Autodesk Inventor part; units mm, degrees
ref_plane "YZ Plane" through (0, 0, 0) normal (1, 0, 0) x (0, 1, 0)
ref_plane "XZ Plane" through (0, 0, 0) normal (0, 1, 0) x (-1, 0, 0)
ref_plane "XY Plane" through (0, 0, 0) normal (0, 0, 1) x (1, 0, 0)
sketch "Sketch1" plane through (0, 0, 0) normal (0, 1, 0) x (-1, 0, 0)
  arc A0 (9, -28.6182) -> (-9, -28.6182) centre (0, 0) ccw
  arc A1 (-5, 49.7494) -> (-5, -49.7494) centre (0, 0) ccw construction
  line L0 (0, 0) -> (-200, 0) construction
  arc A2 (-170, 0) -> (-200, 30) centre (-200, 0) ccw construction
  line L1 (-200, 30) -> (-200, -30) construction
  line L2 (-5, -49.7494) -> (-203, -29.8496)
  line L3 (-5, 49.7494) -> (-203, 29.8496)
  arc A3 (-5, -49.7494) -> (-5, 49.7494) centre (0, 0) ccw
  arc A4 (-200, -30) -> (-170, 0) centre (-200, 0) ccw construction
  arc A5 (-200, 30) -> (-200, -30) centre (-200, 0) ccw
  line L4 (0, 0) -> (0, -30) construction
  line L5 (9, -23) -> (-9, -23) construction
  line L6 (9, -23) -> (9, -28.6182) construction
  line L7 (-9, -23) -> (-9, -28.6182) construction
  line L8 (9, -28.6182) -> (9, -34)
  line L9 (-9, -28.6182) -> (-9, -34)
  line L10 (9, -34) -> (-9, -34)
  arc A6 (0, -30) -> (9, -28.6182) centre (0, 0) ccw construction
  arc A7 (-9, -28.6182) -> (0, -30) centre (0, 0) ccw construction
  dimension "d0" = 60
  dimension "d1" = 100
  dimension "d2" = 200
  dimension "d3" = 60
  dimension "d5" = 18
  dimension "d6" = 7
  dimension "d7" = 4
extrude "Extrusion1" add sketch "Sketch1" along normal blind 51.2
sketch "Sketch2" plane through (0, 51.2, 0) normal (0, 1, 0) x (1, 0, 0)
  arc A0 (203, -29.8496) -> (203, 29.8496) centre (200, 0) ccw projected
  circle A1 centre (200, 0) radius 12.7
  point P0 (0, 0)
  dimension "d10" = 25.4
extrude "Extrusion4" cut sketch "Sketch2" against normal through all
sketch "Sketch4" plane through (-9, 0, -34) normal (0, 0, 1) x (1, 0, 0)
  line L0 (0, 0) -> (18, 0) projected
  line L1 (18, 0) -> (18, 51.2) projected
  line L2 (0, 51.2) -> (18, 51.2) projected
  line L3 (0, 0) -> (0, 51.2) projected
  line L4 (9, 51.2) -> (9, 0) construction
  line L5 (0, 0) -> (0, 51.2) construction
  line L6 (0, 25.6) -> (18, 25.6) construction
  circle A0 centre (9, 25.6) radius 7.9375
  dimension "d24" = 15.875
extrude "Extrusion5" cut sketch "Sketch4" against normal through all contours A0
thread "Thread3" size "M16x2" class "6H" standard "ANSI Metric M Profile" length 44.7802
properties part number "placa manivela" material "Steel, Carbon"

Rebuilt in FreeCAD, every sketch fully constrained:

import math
import FreeCAD as App
import Part
import Sketcher
from FreeCAD import Vector
Q = App.Units.Quantity

doc = App.newDocument("Part")
params = doc.addObject("Spreadsheet::Sheet", "Params")
for row, (alias, value) in enumerate([
    ("sketch1_radius", "50 mm"),
    ("sketch1_radius2", "30 mm"),
    ("sketch1_width", "18 mm"),
    ("pad1_length", "51.2 mm"),
    ("sketch2_diameter", "25.4 mm"),
], start=1):
    params.set(f"A{row}", alias)
    params.set(f"B{row}", "=" + value)
    params.setAlias(f"B{row}", alias)

body = doc.addObject("PartDesign::Body", "Body")

sketch1 = body.newObject("Sketcher::SketchObject", "Sketch")
sketch1.AttachmentSupport = (doc.getObject("XZ_Plane"), [""])
sketch1.MapMode = "FlatFace"
sketch1.addGeometry([
    Part.LineSegment(Vector(203, -30, 0), Vector(5, -50, 0)),
    Part.ArcOfCircle(Part.Circle(Vector(0, 0, 0), Vector(0, 0, 1), 50), math.radians(84), math.radians(276)),
    Part.LineSegment(Vector(5, 50, 0), Vector(203, 30, 0)),
    Part.ArcOfCircle(Part.Circle(Vector(200, 0, 0), Vector(0, 0, 1), 30), math.radians(-84), math.radians(84)),
    Part.ArcOfCircle(Part.Circle(Vector(0, 0, 0), Vector(0, 0, 1), 30), math.radians(-73), math.radians(253)),
    Part.LineSegment(Vector(-9, -29, 0), Vector(-9, -34, 0)),
    Part.LineSegment(Vector(-9, -34, 0), Vector(9, -34, 0)),
    Part.LineSegment(Vector(9, -34, 0), Vector(9, -29, 0)),
], False)
sketch1.addConstraint([
    Sketcher.Constraint("Tangent", 0, 2, 1, 2),
    Sketcher.Constraint("Tangent", 1, 1, 2, 1),
    Sketcher.Constraint("Tangent", 2, 2, 3, 2),
    Sketcher.Constraint("Tangent", 3, 1, 0, 1),
    Sketcher.Constraint("Coincident", 4, 2, 5, 1),
    Sketcher.Constraint("Coincident", 5, 2, 6, 1),
    Sketcher.Constraint("Coincident", 6, 2, 7, 1),
    Sketcher.Constraint("Coincident", 7, 2, 4, 1),
    Sketcher.Constraint("Vertical", 5),
    Sketcher.Constraint("Horizontal", 6),
    Sketcher.Constraint("Vertical", 7),
    Sketcher.Constraint("Coincident", 1, 3, -1, 1),
    Sketcher.Constraint("Coincident", 4, 3, -1, 1),
    Sketcher.Constraint("Equal", 3, 4),
    Sketcher.Constraint("PointOnObject", 3, 3, -1),
    Sketcher.Constraint("Horizontal", 4, 2, 7, 2),
    Sketcher.Constraint("Radius", 1, Q("50 mm")),
    Sketcher.Constraint("Radius", 3, Q("30 mm")),
    Sketcher.Constraint("DistanceX", 6, 1, 6, 2, Q("18 mm")),
    Sketcher.Constraint("DistanceX", -1, 1, 3, 3, Q("200 mm")),
    Sketcher.Constraint("DistanceY", 5, 2, -1, 1, Q("34 mm")),
])
sketch1.setExpression("Constraints[16]", "Params.sketch1_radius")
sketch1.setExpression("Constraints[17]", "Params.sketch1_radius2")
sketch1.setExpression("Constraints[18]", "Params.sketch1_width")
pad1 = body.newObject("PartDesign::Pad", "Pad")
pad1.Profile = sketch1
pad1.setExpression("Length", "Params.pad1_length")
pad1.Reversed = True

sketch2 = body.newObject("Sketcher::SketchObject", "Sketch001")
sketch2.AttachmentSupport = (doc.getObject("XZ_Plane"), [""])
sketch2.MapMode = "FlatFace"
sketch2.AttachmentOffset = App.Placement(Vector(0, 0, -51.2), App.Rotation())
sketch2.addGeometry(Part.Circle(Vector(200, 0, 0), Vector(0, 0, 1), 13), False)
sketch2.addConstraint([
    Sketcher.Constraint("PointOnObject", 0, 3, -1),
    Sketcher.Constraint("Diameter", 0, Q("25.4 mm")),
    Sketcher.Constraint("DistanceX", -1, 1, 0, 3, Q("200 mm")),
])
sketch2.setExpression("Constraints[1]", "Params.sketch2_diameter")
pocket1 = body.newObject("PartDesign::Pocket", "Pocket")
pocket1.Profile = sketch2
pocket1.Type = "ThroughAll"
pocket1.Reversed = True

sketch3 = body.newObject("Sketcher::SketchObject", "Sketch002")
sketch3.AttachmentSupport = (doc.getObject("XY_Plane"), [""])
sketch3.MapMode = "FlatFace"
sketch3.AttachmentOffset = App.Placement(Vector(0, 0, -34), App.Rotation())
sketch3.addGeometry(Part.Circle(Vector(0, 26, 0), Vector(0, 0, 1), 8), False)
sketch3.addConstraint([
    Sketcher.Constraint("PointOnObject", 0, 3, -2),
    Sketcher.Constraint("Diameter", 0, Q("15.875 mm")),
    Sketcher.Constraint("DistanceY", -1, 1, 0, 3, Q("25.6 mm")),
])
pocket2 = body.newObject("PartDesign::Pocket", "Pocket001")
pocket2.Profile = sketch3
pocket2.Type = "ThroughAll"

doc.recompute()
